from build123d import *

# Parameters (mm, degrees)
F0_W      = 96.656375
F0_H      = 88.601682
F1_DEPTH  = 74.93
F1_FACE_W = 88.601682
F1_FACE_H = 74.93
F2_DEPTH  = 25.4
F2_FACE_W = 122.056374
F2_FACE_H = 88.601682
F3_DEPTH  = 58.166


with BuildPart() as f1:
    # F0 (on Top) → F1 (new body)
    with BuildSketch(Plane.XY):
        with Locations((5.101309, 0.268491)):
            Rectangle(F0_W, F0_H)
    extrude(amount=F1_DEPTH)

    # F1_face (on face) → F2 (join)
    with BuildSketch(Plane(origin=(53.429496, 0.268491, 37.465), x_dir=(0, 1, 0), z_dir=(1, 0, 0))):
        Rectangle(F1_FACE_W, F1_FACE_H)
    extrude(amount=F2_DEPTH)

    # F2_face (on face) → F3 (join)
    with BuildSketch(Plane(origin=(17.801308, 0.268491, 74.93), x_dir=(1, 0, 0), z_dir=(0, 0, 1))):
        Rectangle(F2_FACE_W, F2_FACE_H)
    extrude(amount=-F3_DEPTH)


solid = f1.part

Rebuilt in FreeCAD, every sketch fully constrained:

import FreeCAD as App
import Part
import Sketcher
Q = App.Units.Quantity


def add_polygon(sketch, points):
    """Adds a closed chain of lines whose ends are joined by coincident constraints."""
    first, n = sketch.GeometryCount, len(points)
    for a, b in zip(points, points[1:] + points[:1]):
        sketch.addGeometry(Part.LineSegment(App.Vector(*a, 0), App.Vector(*b, 0)), False)
    for i in range(n):
        sketch.addConstraint(Sketcher.Constraint("Coincident", first + i, 2, first + (i + 1) % n, 1))

doc = App.newDocument("Part")
body = doc.addObject("PartDesign::Body", "Body")

sketch1 = body.newObject("Sketcher::SketchObject", "Sketch")
sketch1.AttachmentSupport = (doc.getObject("XY_Plane"), [""])
sketch1.MapMode = "FlatFace"
add_polygon(sketch1, [(-43.226878, 44.569332), (-43.226878, -44.03235), (53.429496, -44.03235), (53.429496, 44.569332)])
sketch1.addConstraint([
    Sketcher.Constraint("Vertical", 0),
    Sketcher.Constraint("Horizontal", 1),
    Sketcher.Constraint("Vertical", 2),
    Sketcher.Constraint("Horizontal", 3),
    Sketcher.Constraint("DistanceX", 1, 1, 1, 2, 96.656375),
    Sketcher.Constraint("DistanceY", 0, 2, 0, 1, 88.601682),
    Sketcher.Constraint("DistanceX", 0, 2, -1, 1, 43.226878),
    Sketcher.Constraint("DistanceY", 0, 2, -1, 1, 44.03235),
])
pad1 = body.newObject("PartDesign::Pad", "Pad")
pad1.Profile = sketch1
pad1.Length = Q("2.95 in")

sketch2 = body.newObject("Sketcher::SketchObject", "Sketch001")
sketch2.AttachmentSupport = (doc.getObject("YZ_Plane"), [""])
sketch2.MapMode = "FlatFace"
sketch2.AttachmentOffset = App.Placement(App.Vector(0, 0, 53.429496), App.Rotation())
add_polygon(sketch2, [(-44.03235, 74.93), (-44.03235, 0), (44.569332, 0), (44.569332, 74.93)])
sketch2.addConstraint([
    Sketcher.Constraint("Vertical", 0),
    Sketcher.Constraint("Horizontal", 1),
    Sketcher.Constraint("Vertical", 2),
    Sketcher.Constraint("Horizontal", 3),
    Sketcher.Constraint("PointOnObject", 0, 2, -1),
    Sketcher.Constraint("DistanceY", 0, 2, 0, 1, Q("2.95 in")),
    Sketcher.Constraint("DistanceX", 1, 1, 1, 2, 88.601682),
    Sketcher.Constraint("DistanceX", 0, 2, -1, 1, 44.03235),
])
pad2 = body.newObject("PartDesign::Pad", "Pad001")
pad2.Profile = sketch2
pad2.Length = Q("1 in")

sketch3 = body.newObject("Sketcher::SketchObject", "Sketch002")
sketch3.AttachmentSupport = (doc.getObject("XY_Plane"), [""])
sketch3.MapMode = "FlatFace"
sketch3.AttachmentOffset = App.Placement(App.Vector(0, 0, 2.95 * 25.4), App.Rotation())
add_polygon(sketch3, [(-43.226879, 44.569332), (-43.226879, -44.03235), (78.829495, -44.03235), (78.829495, 44.569332)])
sketch3.addConstraint([
    Sketcher.Constraint("Vertical", 0),
    Sketcher.Constraint("Horizontal", 1),
    Sketcher.Constraint("Vertical", 2),
    Sketcher.Constraint("Horizontal", 3),
    Sketcher.Constraint("DistanceX", 1, 1, 1, 2, 122.056374),
    Sketcher.Constraint("DistanceY", 0, 2, 0, 1, 88.601682),
    Sketcher.Constraint("DistanceX", 0, 2, -1, 1, 43.226879),
    Sketcher.Constraint("DistanceY", 0, 2, -1, 1, 44.03235),
])
pad3 = body.newObject("PartDesign::Pad", "Pad002")
pad3.Profile = sketch3
pad3.Length = Q("2.29 in")
pad3.Reversed = True

doc.recompute()
